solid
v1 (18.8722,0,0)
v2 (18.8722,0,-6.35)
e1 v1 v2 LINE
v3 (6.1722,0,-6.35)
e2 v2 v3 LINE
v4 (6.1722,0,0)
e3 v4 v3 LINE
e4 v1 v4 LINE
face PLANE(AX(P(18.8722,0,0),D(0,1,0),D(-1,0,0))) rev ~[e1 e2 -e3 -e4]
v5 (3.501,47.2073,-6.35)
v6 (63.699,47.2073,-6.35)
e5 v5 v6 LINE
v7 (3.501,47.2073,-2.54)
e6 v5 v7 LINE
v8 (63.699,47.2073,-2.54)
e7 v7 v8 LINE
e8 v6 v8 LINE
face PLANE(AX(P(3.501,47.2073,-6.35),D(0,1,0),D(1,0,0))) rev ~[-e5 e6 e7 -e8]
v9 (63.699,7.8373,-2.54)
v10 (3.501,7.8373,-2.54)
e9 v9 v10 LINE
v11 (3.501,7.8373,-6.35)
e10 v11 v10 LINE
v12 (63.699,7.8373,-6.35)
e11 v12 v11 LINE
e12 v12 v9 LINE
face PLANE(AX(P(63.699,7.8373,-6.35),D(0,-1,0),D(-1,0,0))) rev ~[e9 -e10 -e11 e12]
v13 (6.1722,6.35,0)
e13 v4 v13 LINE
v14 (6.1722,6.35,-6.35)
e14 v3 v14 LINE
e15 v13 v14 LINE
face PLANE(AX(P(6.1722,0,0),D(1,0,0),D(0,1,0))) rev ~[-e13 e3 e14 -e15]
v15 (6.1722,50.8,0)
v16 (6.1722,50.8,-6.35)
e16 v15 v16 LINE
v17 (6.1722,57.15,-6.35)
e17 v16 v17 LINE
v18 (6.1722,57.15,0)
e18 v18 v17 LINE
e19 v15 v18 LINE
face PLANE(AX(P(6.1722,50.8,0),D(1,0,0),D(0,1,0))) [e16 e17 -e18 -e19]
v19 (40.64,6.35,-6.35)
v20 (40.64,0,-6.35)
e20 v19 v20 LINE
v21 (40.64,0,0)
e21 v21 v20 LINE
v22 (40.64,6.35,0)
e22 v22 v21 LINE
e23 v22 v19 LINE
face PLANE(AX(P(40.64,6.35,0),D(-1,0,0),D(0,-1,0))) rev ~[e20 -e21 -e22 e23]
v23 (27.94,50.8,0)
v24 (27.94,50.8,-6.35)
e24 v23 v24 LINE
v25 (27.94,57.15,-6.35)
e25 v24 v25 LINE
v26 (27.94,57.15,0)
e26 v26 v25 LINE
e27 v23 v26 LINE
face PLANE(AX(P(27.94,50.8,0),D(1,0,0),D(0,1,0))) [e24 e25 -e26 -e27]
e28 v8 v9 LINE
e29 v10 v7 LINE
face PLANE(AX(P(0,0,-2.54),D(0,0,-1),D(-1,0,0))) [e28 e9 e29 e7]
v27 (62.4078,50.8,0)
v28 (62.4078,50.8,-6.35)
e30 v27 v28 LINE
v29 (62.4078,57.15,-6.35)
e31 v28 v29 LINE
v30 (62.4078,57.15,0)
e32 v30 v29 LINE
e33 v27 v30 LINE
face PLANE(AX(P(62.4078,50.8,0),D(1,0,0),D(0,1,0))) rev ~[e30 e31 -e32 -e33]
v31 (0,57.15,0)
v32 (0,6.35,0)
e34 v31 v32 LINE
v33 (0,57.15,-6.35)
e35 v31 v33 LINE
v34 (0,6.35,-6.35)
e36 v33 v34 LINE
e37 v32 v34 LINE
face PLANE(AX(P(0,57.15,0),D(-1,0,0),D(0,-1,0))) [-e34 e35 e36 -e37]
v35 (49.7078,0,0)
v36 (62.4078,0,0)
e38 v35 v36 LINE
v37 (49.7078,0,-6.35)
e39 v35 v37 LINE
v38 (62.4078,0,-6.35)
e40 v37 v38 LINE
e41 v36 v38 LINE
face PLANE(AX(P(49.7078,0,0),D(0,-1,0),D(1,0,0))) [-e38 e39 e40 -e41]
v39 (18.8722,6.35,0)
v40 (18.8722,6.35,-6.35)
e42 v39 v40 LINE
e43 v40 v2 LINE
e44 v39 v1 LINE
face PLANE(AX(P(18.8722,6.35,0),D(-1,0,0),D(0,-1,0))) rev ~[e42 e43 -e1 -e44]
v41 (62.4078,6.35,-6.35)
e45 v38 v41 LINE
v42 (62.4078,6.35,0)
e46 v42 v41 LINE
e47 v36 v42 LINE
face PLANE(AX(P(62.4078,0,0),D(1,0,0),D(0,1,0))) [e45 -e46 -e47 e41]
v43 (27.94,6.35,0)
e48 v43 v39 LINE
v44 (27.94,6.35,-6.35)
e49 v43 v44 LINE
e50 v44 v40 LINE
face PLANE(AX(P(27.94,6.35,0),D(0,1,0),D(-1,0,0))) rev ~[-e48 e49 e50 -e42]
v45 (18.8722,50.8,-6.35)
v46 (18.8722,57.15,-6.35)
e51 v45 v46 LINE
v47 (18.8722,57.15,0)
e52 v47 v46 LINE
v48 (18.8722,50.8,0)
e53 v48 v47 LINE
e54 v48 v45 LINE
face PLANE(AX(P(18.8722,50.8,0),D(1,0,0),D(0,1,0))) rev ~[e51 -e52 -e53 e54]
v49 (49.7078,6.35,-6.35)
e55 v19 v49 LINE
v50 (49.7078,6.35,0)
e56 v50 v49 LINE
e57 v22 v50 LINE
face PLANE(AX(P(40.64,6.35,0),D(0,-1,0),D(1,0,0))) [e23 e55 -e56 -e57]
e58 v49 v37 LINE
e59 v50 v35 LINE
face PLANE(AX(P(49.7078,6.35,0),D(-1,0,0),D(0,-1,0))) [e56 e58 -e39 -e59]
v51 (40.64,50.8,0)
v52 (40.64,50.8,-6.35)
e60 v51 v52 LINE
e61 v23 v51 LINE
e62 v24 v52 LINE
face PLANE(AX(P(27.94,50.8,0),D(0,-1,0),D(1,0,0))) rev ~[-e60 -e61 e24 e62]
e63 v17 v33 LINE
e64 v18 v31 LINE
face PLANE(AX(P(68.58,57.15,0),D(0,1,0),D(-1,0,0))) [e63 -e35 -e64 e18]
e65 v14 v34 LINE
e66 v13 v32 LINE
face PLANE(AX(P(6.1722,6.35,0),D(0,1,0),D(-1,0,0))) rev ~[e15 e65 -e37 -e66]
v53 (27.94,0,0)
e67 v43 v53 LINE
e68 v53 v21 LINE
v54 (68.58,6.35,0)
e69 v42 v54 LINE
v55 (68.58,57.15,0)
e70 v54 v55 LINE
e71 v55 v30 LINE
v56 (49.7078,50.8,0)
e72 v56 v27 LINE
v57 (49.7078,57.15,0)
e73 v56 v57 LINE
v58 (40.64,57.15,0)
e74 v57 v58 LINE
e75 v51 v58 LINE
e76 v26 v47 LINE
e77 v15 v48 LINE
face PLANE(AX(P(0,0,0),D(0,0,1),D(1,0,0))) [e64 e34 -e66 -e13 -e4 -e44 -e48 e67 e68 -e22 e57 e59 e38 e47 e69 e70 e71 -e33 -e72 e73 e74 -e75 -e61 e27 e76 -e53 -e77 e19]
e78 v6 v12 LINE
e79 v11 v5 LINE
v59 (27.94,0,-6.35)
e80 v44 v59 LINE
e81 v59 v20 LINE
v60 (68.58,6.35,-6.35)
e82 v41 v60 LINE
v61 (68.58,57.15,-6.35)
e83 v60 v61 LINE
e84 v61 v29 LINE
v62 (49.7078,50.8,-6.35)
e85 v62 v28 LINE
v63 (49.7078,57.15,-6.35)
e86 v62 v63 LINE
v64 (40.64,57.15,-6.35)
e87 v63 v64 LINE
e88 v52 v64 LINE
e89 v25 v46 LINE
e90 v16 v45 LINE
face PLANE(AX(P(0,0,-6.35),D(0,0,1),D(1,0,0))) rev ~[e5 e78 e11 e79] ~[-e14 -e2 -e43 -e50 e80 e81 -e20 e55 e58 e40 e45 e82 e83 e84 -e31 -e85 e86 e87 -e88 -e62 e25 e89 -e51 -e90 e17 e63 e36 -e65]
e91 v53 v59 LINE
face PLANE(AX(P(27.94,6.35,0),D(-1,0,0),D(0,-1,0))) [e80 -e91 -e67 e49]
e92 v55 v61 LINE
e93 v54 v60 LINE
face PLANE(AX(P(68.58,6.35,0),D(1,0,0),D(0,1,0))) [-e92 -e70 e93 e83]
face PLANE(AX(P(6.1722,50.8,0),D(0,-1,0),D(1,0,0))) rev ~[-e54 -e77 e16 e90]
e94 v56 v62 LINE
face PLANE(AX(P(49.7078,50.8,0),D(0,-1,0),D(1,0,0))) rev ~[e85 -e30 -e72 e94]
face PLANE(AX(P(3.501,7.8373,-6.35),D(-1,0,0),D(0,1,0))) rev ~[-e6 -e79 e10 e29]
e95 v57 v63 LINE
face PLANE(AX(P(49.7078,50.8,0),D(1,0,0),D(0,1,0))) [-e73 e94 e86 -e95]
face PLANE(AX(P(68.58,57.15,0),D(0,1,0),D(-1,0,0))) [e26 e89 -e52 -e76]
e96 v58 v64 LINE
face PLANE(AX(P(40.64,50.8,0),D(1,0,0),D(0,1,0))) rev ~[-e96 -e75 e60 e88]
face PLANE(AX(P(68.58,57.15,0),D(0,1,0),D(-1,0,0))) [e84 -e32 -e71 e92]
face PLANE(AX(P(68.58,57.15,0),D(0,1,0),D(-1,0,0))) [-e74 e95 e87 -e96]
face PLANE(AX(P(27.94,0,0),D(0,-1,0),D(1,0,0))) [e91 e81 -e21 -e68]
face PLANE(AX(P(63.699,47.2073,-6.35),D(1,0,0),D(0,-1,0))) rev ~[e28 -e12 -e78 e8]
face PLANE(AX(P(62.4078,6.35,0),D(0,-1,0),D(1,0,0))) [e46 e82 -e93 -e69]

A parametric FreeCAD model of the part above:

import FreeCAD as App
import Part
import Sketcher
from FreeCAD import Vector
Q = App.Units.Quantity


def add_polygon(sketch, points):
    """Adds a closed chain of lines whose ends are joined by coincident constraints."""
    first, n = sketch.GeometryCount, len(points)
    for a, b in zip(points, points[1:] + points[:1]):
        sketch.addGeometry(Part.LineSegment(App.Vector(*a, 0), App.Vector(*b, 0)), False)
    for i in range(n):
        sketch.addConstraint(Sketcher.Constraint("Coincident", first + i, 2, first + (i + 1) % n, 1))

doc = App.newDocument("Part")
body = doc.addObject("PartDesign::Body", "Body")

sketch1 = body.newObject("Sketcher::SketchObject", "Sketch")
sketch1.AttachmentSupport = (doc.getObject("XY_Plane"), [""])
sketch1.MapMode = "FlatFace"
add_polygon(sketch1, [(62.4078, 6.35), (68.58, 6.35), (68.58, 57.15), (0, 57.15), (0, 6.35), (6.1722, 6.35), (6.1722, 0), (18.8722, 0), (18.8722, 6.35), (27.94, 6.35), (27.94, 0), (40.64, 0), (40.64, 6.35), (49.7078, 6.35), (49.7078, 0), (62.4078, 0)])
sketch1.addConstraint([
    Sketcher.Constraint("Horizontal", 0),
    Sketcher.Constraint("Vertical", 1),
    Sketcher.Constraint("Horizontal", 2),
    Sketcher.Constraint("Vertical", 3),
    Sketcher.Constraint("Horizontal", 4),
    Sketcher.Constraint("Vertical", 5),
    Sketcher.Constraint("Horizontal", 6),
    Sketcher.Constraint("Vertical", 7),
    Sketcher.Constraint("Horizontal", 8),
    Sketcher.Constraint("Vertical", 9),
    Sketcher.Constraint("Horizontal", 10),
    Sketcher.Constraint("Vertical", 11),
    Sketcher.Constraint("Horizontal", 12),
    Sketcher.Constraint("Vertical", 13),
    Sketcher.Constraint("Horizontal", 14),
    Sketcher.Constraint("Vertical", 15),
    Sketcher.Constraint("PointOnObject", 2, 2, -2),
    Sketcher.Constraint("PointOnObject", 5, 2, -1),
    Sketcher.Constraint("PointOnObject", 9, 2, -1),
    Sketcher.Constraint("PointOnObject", 13, 2, -1),
    Sketcher.Constraint("Horizontal", 0, 2, 3, 2),
    Sketcher.Constraint("Horizontal", 4, 2, 7, 2),
    Sketcher.Constraint("Horizontal", 8, 2, 11, 2),
    Sketcher.Constraint("Equal", 0, 4),
    Sketcher.Constraint("Equal", 6, 10),
    Sketcher.Constraint("Equal", 8, 12),
    Sketcher.Constraint("Equal", 10, 14),
    Sketcher.Constraint("DistanceY", 1, 1, 1, 2, Q("2 in")),
    Sketcher.Constraint("DistanceX", 2, 2, 2, 1, Q("2.7 in")),
    Sketcher.Constraint("DistanceX", 6, 1, 6, 2, Q("0.5 in")),
    Sketcher.Constraint("DistanceY", 5, 2, 5, 1, Q("0.25 in")),
    Sketcher.Constraint("DistanceX", 0, 1, 0, 2, Q("0.243 in")),
])
pad1 = body.newObject("PartDesign::Pad", "Pad")
pad1.Profile = sketch1
pad1.Length = Q("0.25 in")
pad1.Reversed = True

sketch2 = body.newObject("Sketcher::SketchObject", "Sketch001")
sketch2.AttachmentSupport = (doc.getObject("XY_Plane"), [""])
sketch2.MapMode = "FlatFace"
add_polygon(sketch2, [(62.4078, 57.15), (49.7078, 57.15), (49.7078, 50.8), (62.4078, 50.8)])
add_polygon(sketch2, [(40.64, 57.15), (27.94, 57.15), (27.94, 50.8), (40.64, 50.8)])
add_polygon(sketch2, [(6.1722, 57.15), (6.1722, 50.8), (18.8722, 50.8), (18.8722, 57.15)])
sketch2.addConstraint([
    Sketcher.Constraint("Horizontal", 0),
    Sketcher.Constraint("Vertical", 1),
    Sketcher.Constraint("Horizontal", 2),
    Sketcher.Constraint("Vertical", 3),
    Sketcher.Constraint("Horizontal", 4),
    Sketcher.Constraint("Vertical", 5),
    Sketcher.Constraint("Horizontal", 6),
    Sketcher.Constraint("Vertical", 7),
    Sketcher.Constraint("Vertical", 8),
    Sketcher.Constraint("Horizontal", 9),
    Sketcher.Constraint("Vertical", 10),
    Sketcher.Constraint("Horizontal", 11),
    Sketcher.Constraint("Horizontal", 3, 2, 4, 2),
    Sketcher.Constraint("Horizontal", 2, 2, 5, 2),
    Sketcher.Constraint("Horizontal", 6, 2, 8, 2),
    Sketcher.Constraint("Horizontal", 7, 2, 10, 2),
    Sketcher.Constraint("Equal", 2, 4),
    Sketcher.Constraint("Equal", 6, 9),
    Sketcher.Constraint("DistanceX", 0, 2, 0, 1, Q("0.5 in")),
    Sketcher.Constraint("DistanceY", -1, 1, 1, 2, Q("2 in")),
    Sketcher.Constraint("DistanceY", 1, 2, 1, 1, Q("0.25 in")),
    Sketcher.Constraint("DistanceX", -1, 1, 4, 2, Q("1.1 in")),
    Sketcher.Constraint("DistanceX", -1, 1, 0, 2, Q("1.957 in")),
    Sketcher.Constraint("DistanceX", -1, 1, 8, 2, Q("0.243 in")),
])
pocket1 = body.newObject("PartDesign::Pocket", "Pocket")
pocket1.Profile = sketch2
pocket1.Length = Q("0.25 in")

sketch3 = body.newObject("Sketcher::SketchObject", "Sketch002")
sketch3.AttachmentSupport = (doc.getObject("XY_Plane"), [""])
sketch3.MapMode = "FlatFace"
sketch3.AttachmentOffset = App.Placement(Vector(0, 0, -0.25 * 25.4), App.Rotation())
add_polygon(sketch3, [(63.699, 47.2073), (63.699, 7.8373), (3.501, 7.8373), (3.501, 47.2073)])
sketch3.addConstraint([
    Sketcher.Constraint("Vertical", 0),
    Sketcher.Constraint("Horizontal", 1),
    Sketcher.Constraint("Vertical", 2),
    Sketcher.Constraint("Horizontal", 3),
    Sketcher.Constraint("DistanceX", 1, 2, 1, 1, Q("2.37 in")),
    Sketcher.Constraint("DistanceY", 0, 2, 0, 1, Q("1.55 in")),
    Sketcher.Constraint("DistanceX", -1, 1, 0, 2, Q("63.699 mm")),
    Sketcher.Constraint("DistanceY", -1, 1, 0, 2, Q("7.8373 mm")),
])
pocket2 = body.newObject("PartDesign::Pocket", "Pocket001")
pocket2.Profile = sketch3
pocket2.Length = Q("0.15 in")
pocket2.Reversed = True

doc.recompute()
